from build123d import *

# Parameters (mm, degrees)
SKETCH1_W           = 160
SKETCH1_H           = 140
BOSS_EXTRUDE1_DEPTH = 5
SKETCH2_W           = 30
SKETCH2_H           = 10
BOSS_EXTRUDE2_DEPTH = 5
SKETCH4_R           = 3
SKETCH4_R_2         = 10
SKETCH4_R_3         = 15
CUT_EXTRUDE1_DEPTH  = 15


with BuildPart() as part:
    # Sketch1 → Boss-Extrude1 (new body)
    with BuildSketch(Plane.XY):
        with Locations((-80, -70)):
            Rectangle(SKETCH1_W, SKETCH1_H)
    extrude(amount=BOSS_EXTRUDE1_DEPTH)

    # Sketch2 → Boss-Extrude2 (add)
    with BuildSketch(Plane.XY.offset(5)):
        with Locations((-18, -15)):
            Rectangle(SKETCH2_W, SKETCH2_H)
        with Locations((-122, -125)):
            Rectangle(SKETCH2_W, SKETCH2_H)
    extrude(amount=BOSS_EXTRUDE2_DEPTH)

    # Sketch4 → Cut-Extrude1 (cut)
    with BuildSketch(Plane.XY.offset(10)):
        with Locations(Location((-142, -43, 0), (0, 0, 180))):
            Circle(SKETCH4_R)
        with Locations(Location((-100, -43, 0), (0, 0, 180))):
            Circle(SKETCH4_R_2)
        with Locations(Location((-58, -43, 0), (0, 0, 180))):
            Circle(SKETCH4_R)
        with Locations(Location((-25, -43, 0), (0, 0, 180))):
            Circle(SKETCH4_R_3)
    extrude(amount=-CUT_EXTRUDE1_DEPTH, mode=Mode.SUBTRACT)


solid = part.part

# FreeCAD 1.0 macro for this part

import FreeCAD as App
import Part
import Sketcher

V = App.Vector
Q = App.Units.Quantity


def add_polygon(sketch, points):
    """Adds a closed chain of lines whose ends are joined by coincident constraints."""
    first, n = sketch.GeometryCount, len(points)
    for a, b in zip(points, points[1:] + points[:1]):
        sketch.addGeometry(Part.LineSegment(App.Vector(*a, 0), App.Vector(*b, 0)), False)
    for i in range(n):
        sketch.addConstraint(Sketcher.Constraint("Coincident", first + i, 2, first + (i + 1) % n, 1))

doc = App.newDocument("Part")
body = doc.addObject("PartDesign::Body", "Body")

sketch1 = body.newObject("Sketcher::SketchObject", "Sketch")
sketch1.AttachmentSupport = (doc.getObject("XY_Plane"), [""])
sketch1.MapMode = "FlatFace"
add_polygon(sketch1, [(-160, 0), (-160, -140), (0, -140), (0, 0)])
sketch1.addConstraint([
    Sketcher.Constraint("Vertical", 0),
    Sketcher.Constraint("Horizontal", 1),
    Sketcher.Constraint("Vertical", 2),
    Sketcher.Constraint("Horizontal", 3),
    Sketcher.Constraint("Coincident", 2, 2, -1, 1),
    Sketcher.Constraint("DistanceX", 1, 1, 1, 2, Q("160 mm")),
    Sketcher.Constraint("DistanceY", 0, 2, 0, 1, Q("140 mm")),
])
pad1 = body.newObject("PartDesign::Pad", "Pad")
pad1.Profile = sketch1
pad1.Length = 5

sketch2 = body.newObject("Sketcher::SketchObject", "Sketch001")
sketch2.AttachmentSupport = (doc.getObject("XY_Plane"), [""])
sketch2.MapMode = "FlatFace"
sketch2.AttachmentOffset = App.Placement(V(0, 0, 5), App.Rotation())
add_polygon(sketch2, [(-33, -10), (-33, -20), (-3, -20), (-3, -10)])
add_polygon(sketch2, [(-137, -120), (-137, -130), (-107, -130), (-107, -120)])
sketch2.addConstraint([
    Sketcher.Constraint("Vertical", 0),
    Sketcher.Constraint("Horizontal", 1),
    Sketcher.Constraint("Vertical", 2),
    Sketcher.Constraint("Horizontal", 3),
    Sketcher.Constraint("Vertical", 4),
    Sketcher.Constraint("Horizontal", 5),
    Sketcher.Constraint("Vertical", 6),
    Sketcher.Constraint("Horizontal", 7),
    Sketcher.Constraint("Equal", 3, 5),
    Sketcher.Constraint("Equal", 2, 4),
    Sketcher.Constraint("DistanceX", 1, 1, 1, 2, Q("30 mm")),
    Sketcher.Constraint("DistanceY", 0, 2, 0, 1, Q("10 mm")),
    Sketcher.Constraint("DistanceX", 0, 2, -1, 1, Q("33 mm")),
    Sketcher.Constraint("DistanceY", 0, 2, -1, 1, Q("20 mm")),
    Sketcher.Constraint("DistanceX", 4, 2, -1, 1, Q("137 mm")),
    Sketcher.Constraint("DistanceY", 4, 2, -1, 1, Q("130 mm")),
])
pad2 = body.newObject("PartDesign::Pad", "Pad001")
pad2.Profile = sketch2
pad2.Length = 5

sketch3 = body.newObject("Sketcher::SketchObject", "Sketch002")
sketch3.AttachmentSupport = (doc.getObject("XY_Plane"), [""])
sketch3.MapMode = "FlatFace"
sketch3.AttachmentOffset = App.Placement(V(0, 0, 10), App.Rotation())
sketch3.addGeometry([
    Part.Circle(V(-142, -43, 0), V(0, 0, 1), 3),
    Part.Circle(V(-100, -43, 0), V(0, 0, 1), 10),
    Part.Circle(V(-58, -43, 0), V(0, 0, 1), 3),
    Part.Circle(V(-25, -43, 0), V(0, 0, 1), 15),
], False)
sketch3.addConstraint([
    Sketcher.Constraint("Equal", 0, 2),
    Sketcher.Constraint("Horizontal", 0, 3, 1, 3),
    Sketcher.Constraint("Horizontal", 1, 3, 2, 3),
    Sketcher.Constraint("Horizontal", 2, 3, 3, 3),
    Sketcher.Constraint("Diameter", 0, Q("6 mm")),
    Sketcher.Constraint("Diameter", 1, Q("20 mm")),
    Sketcher.Constraint("Diameter", 3, Q("30 mm")),
    Sketcher.Constraint("DistanceX", 0, 3, -1, 1, Q("142 mm")),
    Sketcher.Constraint("DistanceY", 0, 3, -1, 1, Q("43 mm")),
    Sketcher.Constraint("DistanceX", 1, 3, -1, 1, Q("100 mm")),
    Sketcher.Constraint("DistanceX", 2, 3, -1, 1, Q("58 mm")),
    Sketcher.Constraint("DistanceX", 3, 3, -1, 1, Q("25 mm")),
])
pocket1 = body.newObject("PartDesign::Pocket", "Pocket")
pocket1.Profile = sketch3
pocket1.Length = 15

doc.recompute()
